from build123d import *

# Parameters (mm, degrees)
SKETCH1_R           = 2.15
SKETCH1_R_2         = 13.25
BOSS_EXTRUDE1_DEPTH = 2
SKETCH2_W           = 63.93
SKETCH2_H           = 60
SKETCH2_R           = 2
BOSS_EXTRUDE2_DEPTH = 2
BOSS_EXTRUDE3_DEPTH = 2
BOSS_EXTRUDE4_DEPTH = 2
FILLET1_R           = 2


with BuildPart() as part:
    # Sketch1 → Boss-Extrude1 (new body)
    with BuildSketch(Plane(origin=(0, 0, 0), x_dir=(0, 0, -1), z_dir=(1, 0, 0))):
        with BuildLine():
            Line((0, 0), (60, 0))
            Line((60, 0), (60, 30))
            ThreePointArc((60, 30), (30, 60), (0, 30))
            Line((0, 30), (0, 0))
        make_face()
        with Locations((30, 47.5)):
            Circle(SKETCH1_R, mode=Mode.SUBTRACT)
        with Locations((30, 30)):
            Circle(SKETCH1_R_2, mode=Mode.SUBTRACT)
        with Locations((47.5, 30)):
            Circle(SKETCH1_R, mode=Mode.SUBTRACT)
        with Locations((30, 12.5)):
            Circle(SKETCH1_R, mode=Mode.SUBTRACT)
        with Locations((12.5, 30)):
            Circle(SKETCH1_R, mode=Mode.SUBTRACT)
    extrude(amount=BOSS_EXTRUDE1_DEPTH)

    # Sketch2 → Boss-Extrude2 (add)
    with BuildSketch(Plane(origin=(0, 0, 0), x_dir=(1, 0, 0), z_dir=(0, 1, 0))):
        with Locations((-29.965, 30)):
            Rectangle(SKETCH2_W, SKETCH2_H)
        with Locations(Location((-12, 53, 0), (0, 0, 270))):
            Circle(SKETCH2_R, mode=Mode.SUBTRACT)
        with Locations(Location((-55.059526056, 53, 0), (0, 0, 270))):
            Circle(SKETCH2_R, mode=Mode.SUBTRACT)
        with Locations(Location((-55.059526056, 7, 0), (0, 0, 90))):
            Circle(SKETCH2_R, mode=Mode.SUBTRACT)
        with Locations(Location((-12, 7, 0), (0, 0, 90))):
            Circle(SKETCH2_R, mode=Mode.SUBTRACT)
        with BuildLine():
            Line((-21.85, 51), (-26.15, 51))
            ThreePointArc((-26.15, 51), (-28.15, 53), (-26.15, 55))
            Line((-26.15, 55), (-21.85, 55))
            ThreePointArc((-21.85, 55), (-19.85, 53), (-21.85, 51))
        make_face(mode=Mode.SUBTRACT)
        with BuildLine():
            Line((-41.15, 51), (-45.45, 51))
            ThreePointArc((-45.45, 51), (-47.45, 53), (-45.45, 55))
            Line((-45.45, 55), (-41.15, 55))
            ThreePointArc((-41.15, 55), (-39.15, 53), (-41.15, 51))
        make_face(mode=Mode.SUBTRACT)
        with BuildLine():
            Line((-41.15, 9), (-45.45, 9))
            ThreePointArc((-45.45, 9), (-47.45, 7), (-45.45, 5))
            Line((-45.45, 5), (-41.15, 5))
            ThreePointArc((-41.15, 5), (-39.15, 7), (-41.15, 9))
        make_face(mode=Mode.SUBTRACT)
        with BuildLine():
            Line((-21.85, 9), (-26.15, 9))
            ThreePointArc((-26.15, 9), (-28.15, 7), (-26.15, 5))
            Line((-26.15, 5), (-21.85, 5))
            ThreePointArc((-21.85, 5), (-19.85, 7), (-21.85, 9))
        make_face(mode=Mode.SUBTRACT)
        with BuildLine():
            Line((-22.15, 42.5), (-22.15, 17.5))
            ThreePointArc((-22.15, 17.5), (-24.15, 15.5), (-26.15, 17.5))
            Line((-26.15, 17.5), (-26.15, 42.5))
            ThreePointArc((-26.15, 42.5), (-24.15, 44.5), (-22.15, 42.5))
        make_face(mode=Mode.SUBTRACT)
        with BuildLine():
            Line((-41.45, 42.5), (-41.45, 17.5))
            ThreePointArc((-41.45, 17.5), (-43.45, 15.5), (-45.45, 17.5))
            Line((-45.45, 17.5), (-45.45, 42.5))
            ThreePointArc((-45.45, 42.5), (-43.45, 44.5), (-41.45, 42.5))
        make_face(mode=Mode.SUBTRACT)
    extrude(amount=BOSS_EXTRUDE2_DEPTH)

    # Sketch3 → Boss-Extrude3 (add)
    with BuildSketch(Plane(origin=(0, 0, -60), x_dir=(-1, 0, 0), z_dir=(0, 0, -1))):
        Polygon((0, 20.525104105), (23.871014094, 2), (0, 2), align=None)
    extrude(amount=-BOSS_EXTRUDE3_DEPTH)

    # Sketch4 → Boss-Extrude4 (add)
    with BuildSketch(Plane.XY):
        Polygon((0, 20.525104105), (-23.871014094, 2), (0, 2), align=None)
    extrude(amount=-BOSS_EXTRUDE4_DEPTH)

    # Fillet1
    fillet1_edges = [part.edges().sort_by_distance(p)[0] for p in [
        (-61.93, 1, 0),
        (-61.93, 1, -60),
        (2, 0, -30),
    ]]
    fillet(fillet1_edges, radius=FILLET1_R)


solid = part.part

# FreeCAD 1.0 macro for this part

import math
import FreeCAD as App
import Part
import Sketcher

V = App.Vector
Q = App.Units.Quantity


def edges_at(feature, points):
    """Names of the edges that pass closest to the given points."""
    edges = feature.Shape.Edges
    near = lambda p: min(range(len(edges)), key=lambda i: edges[i].distToShape(Part.Vertex(*p))[0])
    return sorted({f"Edge{near(p) + 1}" for p in points})

doc = App.newDocument("Part")
body = doc.addObject("PartDesign::Body", "Body")

# Sketch on YZ plane
sketch1 = body.newObject("Sketcher::SketchObject", "Sketch")
sketch1.AttachmentSupport = (doc.getObject("YZ_Plane"), [""])
sketch1.MapMode = "FlatFace"
sketch1.addGeometry(Part.LineSegment(V(0, 0, 0), V(0, -60, 0)), False)
sketch1.addGeometry(Part.LineSegment(V(0, -60, 0), V(30, -60, 0)), False)
sketch1.addGeometry(Part.ArcOfCircle(Part.Circle(V(30, -30, 0), V(0, 0, 1), 30), math.radians(-90), math.radians(90)), False)
sketch1.addGeometry(Part.LineSegment(V(30, 0, 0), V(0, 0, 0)), False)
sketch1.addGeometry(Part.Circle(V(12.5, -30, 0), V(0, 0, 1), 2.1), False)
sketch1.addGeometry(Part.Circle(V(30, -12.5, 0), V(0, 0, 1), 2.1), False)
sketch1.addGeometry(Part.Circle(V(30, -30, 0), V(0, 0, 1), 13.2), False)
sketch1.addGeometry(Part.Circle(V(30, -47.5, 0), V(0, 0, 1), 2.1), False)
sketch1.addGeometry(Part.Circle(V(47.5, -30, 0), V(0, 0, 1), 2.1), False)
sketch1.addConstraint(Sketcher.Constraint("Coincident", 0, 2, 1, 1))
sketch1.addConstraint(Sketcher.Constraint("Tangent", 1, 2, 2, 1))
sketch1.addConstraint(Sketcher.Constraint("Tangent", 2, 2, 3, 1))
sketch1.addConstraint(Sketcher.Constraint("Coincident", 3, 2, 0, 1))
sketch1.addConstraint(Sketcher.Constraint("Vertical", 0))
sketch1.addConstraint(Sketcher.Constraint("Horizontal", 1))
sketch1.addConstraint(Sketcher.Constraint("Horizontal", 3))
sketch1.addConstraint(Sketcher.Constraint("Coincident", 3, 2, -1, 1))
sketch1.addConstraint(Sketcher.Constraint("Coincident", 6, 3, 2, 3))
sketch1.addConstraint(Sketcher.Constraint("Equal", 4, 5))
sketch1.addConstraint(Sketcher.Constraint("Equal", 5, 7))
sketch1.addConstraint(Sketcher.Constraint("Equal", 7, 8))
sketch1.addConstraint(Sketcher.Constraint("Horizontal", 2, 3, 4, 3))
sketch1.addConstraint(Sketcher.Constraint("Horizontal", 6, 3, 8, 3))
sketch1.addConstraint(Sketcher.Constraint("Vertical", 2, 3, 5, 3))
sketch1.addConstraint(Sketcher.Constraint("Vertical", 6, 3, 7, 3))
sketch1.addConstraint(Sketcher.Constraint("Radius", 2, Q("30 mm")))
sketch1.addConstraint(Sketcher.Constraint("Diameter", 4, Q("4.3 mm")))
sketch1.addConstraint(Sketcher.Constraint("Diameter", 6, Q("26.5 mm")))
sketch1.addConstraint(Sketcher.Constraint("DistanceX", 1, 1, 1, 2, Q("30 mm")))
sketch1.addConstraint(Sketcher.Constraint("DistanceY", 7, 3, 5, 3, Q("35 mm")))
sketch1.addConstraint(Sketcher.Constraint("DistanceX", 4, 3, 8, 3, Q("35 mm")))
sketch1.addConstraint(Sketcher.Constraint("DistanceX", -1, 1, 4, 3, Q("12.5 mm")))
sketch1.addConstraint(Sketcher.Constraint("DistanceY", 5, 3, -1, 1, Q("12.5 mm")))
pad1 = body.newObject("PartDesign::Pad", "Pad")
pad1.Profile = sketch1
pad1.Length = 2

# Sketch on XZ plane
sketch2 = body.newObject("Sketcher::SketchObject", "Sketch001")
sketch2.AttachmentSupport = (doc.getObject("XZ_Plane"), [""])
sketch2.MapMode = "FlatFace"
sketch2.addGeometry(Part.LineSegment(V(-61.9, -60, 0), V(-61.9, 0, 0)), False)
sketch2.addGeometry(Part.LineSegment(V(-61.9, 0, 0), V(2, 0, 0)), False)
sketch2.addGeometry(Part.LineSegment(V(2, 0, 0), V(2, -60, 0)), False)
sketch2.addGeometry(Part.LineSegment(V(2, -60, 0), V(-61.9, -60, 0)), False)
sketch2.addGeometry(Part.Circle(V(-55.1, -7, 0), V(0, 0, 1), 2), False)
sketch2.addGeometry(Part.LineSegment(V(-45.5, -9, 0), V(-41.1, -9, 0)), False)
sketch2.addGeometry(Part.ArcOfCircle(Part.Circle(V(-41.1, -7, 0), V(0, 0, 1), 2), math.radians(-90), math.radians(90)), False)
sketch2.addGeometry(Part.LineSegment(V(-41.1, -5, 0), V(-45.5, -5, 0)), False)
sketch2.addGeometry(Part.ArcOfCircle(Part.Circle(V(-45.5, -7, 0), V(0, 0, 1), 2), math.radians(90), math.radians(270)), False)
sketch2.addGeometry(Part.LineSegment(V(-26.1, -9, 0), V(-21.9, -9, 0)), False)
sketch2.addGeometry(Part.ArcOfCircle(Part.Circle(V(-21.9, -7, 0), V(0, 0, 1), 2), math.radians(-90), math.radians(90)), False)
sketch2.addGeometry(Part.LineSegment(V(-21.9, -5, 0), V(-26.1, -5, 0)), False)
sketch2.addGeometry(Part.ArcOfCircle(Part.Circle(V(-26.1, -7, 0), V(0, 0, 1), 2), math.radians(90), math.radians(270)), False)
sketch2.addGeometry(Part.Circle(V(-12, -7, 0), V(0, 0, 1), 2), False)
sketch2.addGeometry(Part.ArcOfCircle(Part.Circle(V(-43.5, -42.5, 0), V(0, 0, 1), 2), math.radians(180), math.radians(360)), False)
sketch2.addGeometry(Part.LineSegment(V(-41.5, -42.5, 0), V(-41.5, -17.5, 0)), False)
sketch2.addGeometry(Part.ArcOfCircle(Part.Circle(V(-43.5, -17.5, 0), V(0, 0, 1), 2), math.radians(0), math.radians(180)), False)
sketch2.addGeometry(Part.LineSegment(V(-45.5, -17.5, 0), V(-45.5, -42.5, 0)), False)
sketch2.addGeometry(Part.Circle(V(-55.1, -53, 0), V(0, 0, 1), 2), False)
sketch2.addGeometry(Part.ArcOfCircle(Part.Circle(V(-41.1, -53, 0), V(0, 0, 1), 2), math.radians(-90), math.radians(90)), False)
sketch2.addGeometry(Part.LineSegment(V(-41.1, -51, 0), V(-45.5, -51, 0)), False)
sketch2.addGeometry(Part.ArcOfCircle(Part.Circle(V(-45.5, -53, 0), V(0, 0, 1), 2), math.radians(90), math.radians(270)), False)
sketch2.addGeometry(Part.LineSegment(V(-45.5, -55, 0), V(-41.1, -55, 0)), False)
sketch2.addGeometry(Part.ArcOfCircle(Part.Circle(V(-24.1, -42.5, 0), V(0, 0, 1), 2), math.radians(180), math.radians(360)), False)
sketch2.addGeometry(Part.LineSegment(V(-22.1, -42.5, 0), V(-22.1, -17.5, 0)), False)
sketch2.addGeometry(Part.ArcOfCircle(Part.Circle(V(-24.1, -17.5, 0), V(0, 0, 1), 2), math.radians(0), math.radians(180)), False)
sketch2.addGeometry(Part.LineSegment(V(-26.1, -17.5, 0), V(-26.1, -42.5, 0)), False)
sketch2.addGeometry(Part.ArcOfCircle(Part.Circle(V(-21.9, -53, 0), V(0, 0, 1), 2), math.radians(-90), math.radians(90)), False)
sketch2.addGeometry(Part.LineSegment(V(-21.9, -51, 0), V(-26.1, -51, 0)), False)
sketch2.addGeometry(Part.ArcOfCircle(Part.Circle(V(-26.1, -53, 0), V(0, 0, 1), 2), math.radians(90), math.radians(270)), False)
sketch2.addGeometry(Part.LineSegment(V(-26.1, -55, 0), V(-21.9, -55, 0)), False)
sketch2.addGeometry(Part.Circle(V(-12, -53, 0), V(0, 0, 1), 2), False)
sketch2.addConstraint(Sketcher.Constraint("Coincident", 0, 2, 1, 1))
sketch2.addConstraint(Sketcher.Constraint("Coincident", 1, 2, 2, 1))
sketch2.addConstraint(Sketcher.Constraint("Coincident", 2, 2, 3, 1))
sketch2.addConstraint(Sketcher.Constraint("Coincident", 3, 2, 0, 1))
sketch2.addConstraint(Sketcher.Constraint("Tangent", 5, 2, 6, 1))
sketch2.addConstraint(Sketcher.Constraint("Tangent", 6, 2, 7, 1))
sketch2.addConstraint(Sketcher.Constraint("Tangent", 7, 2, 8, 1))
sketch2.addConstraint(Sketcher.Constraint("Tangent", 8, 2, 5, 1))
sketch2.addConstraint(Sketcher.Constraint("Tangent", 9, 2, 10, 1))
sketch2.addConstraint(Sketcher.Constraint("Tangent", 10, 2, 11, 1))
sketch2.addConstraint(Sketcher.Constraint("Tangent", 11, 2, 12, 1))
sketch2.addConstraint(Sketcher.Constraint("Tangent", 12, 2, 9, 1))
sketch2.addConstraint(Sketcher.Constraint("Tangent", 14, 2, 15, 1))
sketch2.addConstraint(Sketcher.Constraint("Tangent", 15, 2, 16, 1))
sketch2.addConstraint(Sketcher.Constraint("Tangent", 16, 2, 17, 1))
sketch2.addConstraint(Sketcher.Constraint("Tangent", 17, 2, 14, 1))
sketch2.addConstraint(Sketcher.Constraint("Tangent", 19, 2, 20, 1))
sketch2.addConstraint(Sketcher.Constraint("Tangent", 20, 2, 21, 1))
sketch2.addConstraint(Sketcher.Constraint("Tangent", 21, 2, 22, 1))
sketch2.addConstraint(Sketcher.Constraint("Tangent", 22, 2, 19, 1))
sketch2.addConstraint(Sketcher.Constraint("Tangent", 23, 2, 24, 1))
sketch2.addConstraint(Sketcher.Constraint("Tangent", 24, 2, 25, 1))
sketch2.addConstraint(Sketcher.Constraint("Tangent", 25, 2, 26, 1))
sketch2.addConstraint(Sketcher.Constraint("Tangent", 26, 2, 23, 1))
sketch2.addConstraint(Sketcher.Constraint("Tangent", 27, 2, 28, 1))
sketch2.addConstraint(Sketcher.Constraint("Tangent", 28, 2, 29, 1))
sketch2.addConstraint(Sketcher.Constraint("Tangent", 29, 2, 30, 1))
sketch2.addConstraint(Sketcher.Constraint("Tangent", 30, 2, 27, 1))
sketch2.addConstraint(Sketcher.Constraint("Vertical", 0))
sketch2.addConstraint(Sketcher.Constraint("Horizontal", 1))
sketch2.addConstraint(Sketcher.Constraint("Vertical", 2))
sketch2.addConstraint(Sketcher.Constraint("Horizontal", 3))
sketch2.addConstraint(Sketcher.Constraint("Horizontal", 5))
sketch2.addConstraint(Sketcher.Constraint("Horizontal", 7))
sketch2.addConstraint(Sketcher.Constraint("Horizontal", 9))
sketch2.addConstraint(Sketcher.Constraint("Horizontal", 11))
sketch2.addConstraint(Sketcher.Constraint("Vertical", 15))
sketch2.addConstraint(Sketcher.Constraint("Vertical", 17))
sketch2.addConstraint(Sketcher.Constraint("Horizontal", 20))
sketch2.addConstraint(Sketcher.Constraint("Horizontal", 22))
sketch2.addConstraint(Sketcher.Constraint("Vertical", 24))
sketch2.addConstraint(Sketcher.Constraint("Vertical", 26))
sketch2.addConstraint(Sketcher.Constraint("Horizontal", 28))
sketch2.addConstraint(Sketcher.Constraint("Horizontal", 30))
sketch2.addConstraint(Sketcher.Constraint("Equal", 4, 6))
sketch2.addConstraint(Sketcher.Constraint("Equal", 8, 10))
sketch2.addConstraint(Sketcher.Constraint("Equal", 12, 13))
sketch2.addConstraint(Sketcher.Constraint("Equal", 13, 14))
sketch2.addConstraint(Sketcher.Constraint("Equal", 16, 18))
sketch2.addConstraint(Sketcher.Constraint("Equal", 18, 19))
sketch2.addConstraint(Sketcher.Constraint("Equal", 21, 23))
sketch2.addConstraint(Sketcher.Constraint("Equal", 25, 27))
sketch2.addConstraint(Sketcher.Constraint("Equal", 29, 31))
sketch2.addConstraint(Sketcher.Constraint("PointOnObject", 0, 2, -1))
sketch2.addConstraint(Sketcher.Constraint("Horizontal", 4, 3, 6, 3))
sketch2.addConstraint(Sketcher.Constraint("Horizontal", 8, 3, 10, 3))
sketch2.addConstraint(Sketcher.Constraint("Horizontal", 12, 3, 13, 3))
sketch2.addConstraint(Sketcher.Constraint("Horizontal", 18, 3, 19, 3))
sketch2.addConstraint(Sketcher.Constraint("Horizontal", 14, 3, 23, 3))
sketch2.addConstraint(Sketcher.Constraint("Horizontal", 16, 3, 25, 3))
sketch2.addConstraint(Sketcher.Constraint("Horizontal", 21, 3, 27, 3))
sketch2.addConstraint(Sketcher.Constraint("Horizontal", 29, 3, 31, 3))
sketch2.addConstraint(Sketcher.Constraint("Vertical", 4, 3, 18, 3))
sketch2.addConstraint(Sketcher.Constraint("Vertical", 6, 3, 19, 3))
sketch2.addConstraint(Sketcher.Constraint("Vertical", 8, 3, 21, 3))
sketch2.addConstraint(Sketcher.Constraint("Vertical", 10, 3, 27, 3))
sketch2.addConstraint(Sketcher.Constraint("Vertical", 12, 3, 29, 3))
sketch2.addConstraint(Sketcher.Constraint("Vertical", 13, 3, 31, 3))
sketch2.addConstraint(Sketcher.Constraint("Vertical", 8, 2, 16, 2))
sketch2.addConstraint(Sketcher.Constraint("Vertical", 12, 2, 25, 2))
sketch2.addConstraint(Sketcher.Constraint("Equal", 7, 9))
sketch2.addConstraint(Sketcher.Constraint("Diameter", 4, Q("4 mm")))
sketch2.addConstraint(Sketcher.Constraint("DistanceY", 0, 1, 0, 2, Q("60 mm")))
sketch2.addConstraint(Sketcher.Constraint("DistanceY", 15, 1, 15, 2, Q("25 mm")))
sketch2.addConstraint(Sketcher.Constraint("DistanceX", 5, 1, 5, 2, Q("4.3 mm")))
sketch2.addConstraint(Sketcher.Constraint("DistanceY", 4, 3, -1, 1, Q("7 mm")))
sketch2.addConstraint(Sketcher.Constraint("DistanceX", 13, 3, -1, 1, Q("12 mm")))
sketch2.addConstraint(Sketcher.Constraint("DistanceY", 18, 3, -1, 1, Q("53 mm")))
sketch2.addConstraint(Sketcher.Constraint("DistanceX", -1, 1, 1, 2, Q("2 mm")))
sketch2.addConstraint(Sketcher.Constraint("DistanceX", 6, 3, 12, 3, Q("15 mm")))
sketch2.addConstraint(Sketcher.Constraint("DistanceX", 1, 1, 1, 2, Q("63.93 mm")))
sketch2.addConstraint(Sketcher.Constraint("DistanceY", 14, 3, -1, 1, Q("42.5 mm")))
sketch2.addConstraint(Sketcher.Constraint("DistanceX", 6, 3, -1, 1, Q("41.15 mm")))
sketch2.addConstraint(Sketcher.Constraint("DistanceX", 4, 3, -1, 1, Q("55.059526 mm")))
pad2 = body.newObject("PartDesign::Pad", "Pad001")
pad2.Profile = sketch2
pad2.Length = 2
pad2.Reversed = True

# Sketch on XY plane
sketch3 = body.newObject("Sketcher::SketchObject", "Sketch002")
sketch3.AttachmentSupport = (doc.getObject("XY_Plane"), [""])
sketch3.MapMode = "FlatFace"
sketch3.AttachmentOffset = App.Placement(V(0, 0, -60), App.Rotation())
sketch3.addGeometry(Part.LineSegment(V(-24, 2, 0), V(0, 21, 0)), False)
sketch3.addGeometry(Part.LineSegment(V(0, 21, 0), V(0, 2, 0)), False)
sketch3.addGeometry(Part.LineSegment(V(0, 2, 0), V(-24, 2, 0)), False)
sketch3.addConstraint(Sketcher.Constraint("Coincident", 0, 2, 1, 1))
sketch3.addConstraint(Sketcher.Constraint("Coincident", 1, 2, 2, 1))
sketch3.addConstraint(Sketcher.Constraint("Coincident", 2, 2, 0, 1))
sketch3.addConstraint(Sketcher.Constraint("Vertical", 1))
sketch3.addConstraint(Sketcher.Constraint("Horizontal", 2))
sketch3.addConstraint(Sketcher.Constraint("PointOnObject", 0, 2, -2))
sketch3.addConstraint(Sketcher.Constraint("DistanceY", -1, 1, 1, 2, Q("2 mm")))
sketch3.addConstraint(Sketcher.Constraint("Distance", 0, Q("30.215969 mm")))
sketch3.addConstraint(Sketcher.Constraint("DistanceX", 2, 2, 2, 1, Q("23.871014 mm")))
pad3 = body.newObject("PartDesign::Pad", "Pad002")
pad3.Profile = sketch3
pad3.Length = 2

# Sketch on XY plane
sketch4 = body.newObject("Sketcher::SketchObject", "Sketch003")
sketch4.AttachmentSupport = (doc.getObject("XY_Plane"), [""])
sketch4.MapMode = "FlatFace"
sketch4.addGeometry(Part.LineSegment(V(0, 21, 0), V(-24, 2, 0)), False)
sketch4.addGeometry(Part.LineSegment(V(-24, 2, 0), V(0, 2, 0)), False)
sketch4.addGeometry(Part.LineSegment(V(0, 2, 0), V(0, 21, 0)), False)
sketch4.addConstraint(Sketcher.Constraint("Coincident", 0, 2, 1, 1))
sketch4.addConstraint(Sketcher.Constraint("Coincident", 1, 2, 2, 1))
sketch4.addConstraint(Sketcher.Constraint("Coincident", 2, 2, 0, 1))
sketch4.addConstraint(Sketcher.Constraint("Horizontal", 1))
sketch4.addConstraint(Sketcher.Constraint("Vertical", 2))
sketch4.addConstraint(Sketcher.Constraint("PointOnObject", 1, 2, -2))
sketch4.addConstraint(Sketcher.Constraint("DistanceY", -1, 1, 0, 2, Q("2 mm")))
sketch4.addConstraint(Sketcher.Constraint("Distance", 0, Q("30.215969 mm")))
sketch4.addConstraint(Sketcher.Constraint("DistanceX", 1, 1, 1, 2, Q("23.871014 mm")))
pad4 = body.newObject("PartDesign::Pad", "Pad003")
pad4.Profile = sketch4
pad4.Length = 2
pad4.Reversed = True
doc.recompute()

fillet = body.newObject("PartDesign::Fillet", "Fillet")
fillet.Base = (pad4, edges_at(pad4, [(-61.93, 1, 0), (-61.93, 1, -60), (2, 0, -30)]))
fillet.Radius = 2

doc.recompute()
